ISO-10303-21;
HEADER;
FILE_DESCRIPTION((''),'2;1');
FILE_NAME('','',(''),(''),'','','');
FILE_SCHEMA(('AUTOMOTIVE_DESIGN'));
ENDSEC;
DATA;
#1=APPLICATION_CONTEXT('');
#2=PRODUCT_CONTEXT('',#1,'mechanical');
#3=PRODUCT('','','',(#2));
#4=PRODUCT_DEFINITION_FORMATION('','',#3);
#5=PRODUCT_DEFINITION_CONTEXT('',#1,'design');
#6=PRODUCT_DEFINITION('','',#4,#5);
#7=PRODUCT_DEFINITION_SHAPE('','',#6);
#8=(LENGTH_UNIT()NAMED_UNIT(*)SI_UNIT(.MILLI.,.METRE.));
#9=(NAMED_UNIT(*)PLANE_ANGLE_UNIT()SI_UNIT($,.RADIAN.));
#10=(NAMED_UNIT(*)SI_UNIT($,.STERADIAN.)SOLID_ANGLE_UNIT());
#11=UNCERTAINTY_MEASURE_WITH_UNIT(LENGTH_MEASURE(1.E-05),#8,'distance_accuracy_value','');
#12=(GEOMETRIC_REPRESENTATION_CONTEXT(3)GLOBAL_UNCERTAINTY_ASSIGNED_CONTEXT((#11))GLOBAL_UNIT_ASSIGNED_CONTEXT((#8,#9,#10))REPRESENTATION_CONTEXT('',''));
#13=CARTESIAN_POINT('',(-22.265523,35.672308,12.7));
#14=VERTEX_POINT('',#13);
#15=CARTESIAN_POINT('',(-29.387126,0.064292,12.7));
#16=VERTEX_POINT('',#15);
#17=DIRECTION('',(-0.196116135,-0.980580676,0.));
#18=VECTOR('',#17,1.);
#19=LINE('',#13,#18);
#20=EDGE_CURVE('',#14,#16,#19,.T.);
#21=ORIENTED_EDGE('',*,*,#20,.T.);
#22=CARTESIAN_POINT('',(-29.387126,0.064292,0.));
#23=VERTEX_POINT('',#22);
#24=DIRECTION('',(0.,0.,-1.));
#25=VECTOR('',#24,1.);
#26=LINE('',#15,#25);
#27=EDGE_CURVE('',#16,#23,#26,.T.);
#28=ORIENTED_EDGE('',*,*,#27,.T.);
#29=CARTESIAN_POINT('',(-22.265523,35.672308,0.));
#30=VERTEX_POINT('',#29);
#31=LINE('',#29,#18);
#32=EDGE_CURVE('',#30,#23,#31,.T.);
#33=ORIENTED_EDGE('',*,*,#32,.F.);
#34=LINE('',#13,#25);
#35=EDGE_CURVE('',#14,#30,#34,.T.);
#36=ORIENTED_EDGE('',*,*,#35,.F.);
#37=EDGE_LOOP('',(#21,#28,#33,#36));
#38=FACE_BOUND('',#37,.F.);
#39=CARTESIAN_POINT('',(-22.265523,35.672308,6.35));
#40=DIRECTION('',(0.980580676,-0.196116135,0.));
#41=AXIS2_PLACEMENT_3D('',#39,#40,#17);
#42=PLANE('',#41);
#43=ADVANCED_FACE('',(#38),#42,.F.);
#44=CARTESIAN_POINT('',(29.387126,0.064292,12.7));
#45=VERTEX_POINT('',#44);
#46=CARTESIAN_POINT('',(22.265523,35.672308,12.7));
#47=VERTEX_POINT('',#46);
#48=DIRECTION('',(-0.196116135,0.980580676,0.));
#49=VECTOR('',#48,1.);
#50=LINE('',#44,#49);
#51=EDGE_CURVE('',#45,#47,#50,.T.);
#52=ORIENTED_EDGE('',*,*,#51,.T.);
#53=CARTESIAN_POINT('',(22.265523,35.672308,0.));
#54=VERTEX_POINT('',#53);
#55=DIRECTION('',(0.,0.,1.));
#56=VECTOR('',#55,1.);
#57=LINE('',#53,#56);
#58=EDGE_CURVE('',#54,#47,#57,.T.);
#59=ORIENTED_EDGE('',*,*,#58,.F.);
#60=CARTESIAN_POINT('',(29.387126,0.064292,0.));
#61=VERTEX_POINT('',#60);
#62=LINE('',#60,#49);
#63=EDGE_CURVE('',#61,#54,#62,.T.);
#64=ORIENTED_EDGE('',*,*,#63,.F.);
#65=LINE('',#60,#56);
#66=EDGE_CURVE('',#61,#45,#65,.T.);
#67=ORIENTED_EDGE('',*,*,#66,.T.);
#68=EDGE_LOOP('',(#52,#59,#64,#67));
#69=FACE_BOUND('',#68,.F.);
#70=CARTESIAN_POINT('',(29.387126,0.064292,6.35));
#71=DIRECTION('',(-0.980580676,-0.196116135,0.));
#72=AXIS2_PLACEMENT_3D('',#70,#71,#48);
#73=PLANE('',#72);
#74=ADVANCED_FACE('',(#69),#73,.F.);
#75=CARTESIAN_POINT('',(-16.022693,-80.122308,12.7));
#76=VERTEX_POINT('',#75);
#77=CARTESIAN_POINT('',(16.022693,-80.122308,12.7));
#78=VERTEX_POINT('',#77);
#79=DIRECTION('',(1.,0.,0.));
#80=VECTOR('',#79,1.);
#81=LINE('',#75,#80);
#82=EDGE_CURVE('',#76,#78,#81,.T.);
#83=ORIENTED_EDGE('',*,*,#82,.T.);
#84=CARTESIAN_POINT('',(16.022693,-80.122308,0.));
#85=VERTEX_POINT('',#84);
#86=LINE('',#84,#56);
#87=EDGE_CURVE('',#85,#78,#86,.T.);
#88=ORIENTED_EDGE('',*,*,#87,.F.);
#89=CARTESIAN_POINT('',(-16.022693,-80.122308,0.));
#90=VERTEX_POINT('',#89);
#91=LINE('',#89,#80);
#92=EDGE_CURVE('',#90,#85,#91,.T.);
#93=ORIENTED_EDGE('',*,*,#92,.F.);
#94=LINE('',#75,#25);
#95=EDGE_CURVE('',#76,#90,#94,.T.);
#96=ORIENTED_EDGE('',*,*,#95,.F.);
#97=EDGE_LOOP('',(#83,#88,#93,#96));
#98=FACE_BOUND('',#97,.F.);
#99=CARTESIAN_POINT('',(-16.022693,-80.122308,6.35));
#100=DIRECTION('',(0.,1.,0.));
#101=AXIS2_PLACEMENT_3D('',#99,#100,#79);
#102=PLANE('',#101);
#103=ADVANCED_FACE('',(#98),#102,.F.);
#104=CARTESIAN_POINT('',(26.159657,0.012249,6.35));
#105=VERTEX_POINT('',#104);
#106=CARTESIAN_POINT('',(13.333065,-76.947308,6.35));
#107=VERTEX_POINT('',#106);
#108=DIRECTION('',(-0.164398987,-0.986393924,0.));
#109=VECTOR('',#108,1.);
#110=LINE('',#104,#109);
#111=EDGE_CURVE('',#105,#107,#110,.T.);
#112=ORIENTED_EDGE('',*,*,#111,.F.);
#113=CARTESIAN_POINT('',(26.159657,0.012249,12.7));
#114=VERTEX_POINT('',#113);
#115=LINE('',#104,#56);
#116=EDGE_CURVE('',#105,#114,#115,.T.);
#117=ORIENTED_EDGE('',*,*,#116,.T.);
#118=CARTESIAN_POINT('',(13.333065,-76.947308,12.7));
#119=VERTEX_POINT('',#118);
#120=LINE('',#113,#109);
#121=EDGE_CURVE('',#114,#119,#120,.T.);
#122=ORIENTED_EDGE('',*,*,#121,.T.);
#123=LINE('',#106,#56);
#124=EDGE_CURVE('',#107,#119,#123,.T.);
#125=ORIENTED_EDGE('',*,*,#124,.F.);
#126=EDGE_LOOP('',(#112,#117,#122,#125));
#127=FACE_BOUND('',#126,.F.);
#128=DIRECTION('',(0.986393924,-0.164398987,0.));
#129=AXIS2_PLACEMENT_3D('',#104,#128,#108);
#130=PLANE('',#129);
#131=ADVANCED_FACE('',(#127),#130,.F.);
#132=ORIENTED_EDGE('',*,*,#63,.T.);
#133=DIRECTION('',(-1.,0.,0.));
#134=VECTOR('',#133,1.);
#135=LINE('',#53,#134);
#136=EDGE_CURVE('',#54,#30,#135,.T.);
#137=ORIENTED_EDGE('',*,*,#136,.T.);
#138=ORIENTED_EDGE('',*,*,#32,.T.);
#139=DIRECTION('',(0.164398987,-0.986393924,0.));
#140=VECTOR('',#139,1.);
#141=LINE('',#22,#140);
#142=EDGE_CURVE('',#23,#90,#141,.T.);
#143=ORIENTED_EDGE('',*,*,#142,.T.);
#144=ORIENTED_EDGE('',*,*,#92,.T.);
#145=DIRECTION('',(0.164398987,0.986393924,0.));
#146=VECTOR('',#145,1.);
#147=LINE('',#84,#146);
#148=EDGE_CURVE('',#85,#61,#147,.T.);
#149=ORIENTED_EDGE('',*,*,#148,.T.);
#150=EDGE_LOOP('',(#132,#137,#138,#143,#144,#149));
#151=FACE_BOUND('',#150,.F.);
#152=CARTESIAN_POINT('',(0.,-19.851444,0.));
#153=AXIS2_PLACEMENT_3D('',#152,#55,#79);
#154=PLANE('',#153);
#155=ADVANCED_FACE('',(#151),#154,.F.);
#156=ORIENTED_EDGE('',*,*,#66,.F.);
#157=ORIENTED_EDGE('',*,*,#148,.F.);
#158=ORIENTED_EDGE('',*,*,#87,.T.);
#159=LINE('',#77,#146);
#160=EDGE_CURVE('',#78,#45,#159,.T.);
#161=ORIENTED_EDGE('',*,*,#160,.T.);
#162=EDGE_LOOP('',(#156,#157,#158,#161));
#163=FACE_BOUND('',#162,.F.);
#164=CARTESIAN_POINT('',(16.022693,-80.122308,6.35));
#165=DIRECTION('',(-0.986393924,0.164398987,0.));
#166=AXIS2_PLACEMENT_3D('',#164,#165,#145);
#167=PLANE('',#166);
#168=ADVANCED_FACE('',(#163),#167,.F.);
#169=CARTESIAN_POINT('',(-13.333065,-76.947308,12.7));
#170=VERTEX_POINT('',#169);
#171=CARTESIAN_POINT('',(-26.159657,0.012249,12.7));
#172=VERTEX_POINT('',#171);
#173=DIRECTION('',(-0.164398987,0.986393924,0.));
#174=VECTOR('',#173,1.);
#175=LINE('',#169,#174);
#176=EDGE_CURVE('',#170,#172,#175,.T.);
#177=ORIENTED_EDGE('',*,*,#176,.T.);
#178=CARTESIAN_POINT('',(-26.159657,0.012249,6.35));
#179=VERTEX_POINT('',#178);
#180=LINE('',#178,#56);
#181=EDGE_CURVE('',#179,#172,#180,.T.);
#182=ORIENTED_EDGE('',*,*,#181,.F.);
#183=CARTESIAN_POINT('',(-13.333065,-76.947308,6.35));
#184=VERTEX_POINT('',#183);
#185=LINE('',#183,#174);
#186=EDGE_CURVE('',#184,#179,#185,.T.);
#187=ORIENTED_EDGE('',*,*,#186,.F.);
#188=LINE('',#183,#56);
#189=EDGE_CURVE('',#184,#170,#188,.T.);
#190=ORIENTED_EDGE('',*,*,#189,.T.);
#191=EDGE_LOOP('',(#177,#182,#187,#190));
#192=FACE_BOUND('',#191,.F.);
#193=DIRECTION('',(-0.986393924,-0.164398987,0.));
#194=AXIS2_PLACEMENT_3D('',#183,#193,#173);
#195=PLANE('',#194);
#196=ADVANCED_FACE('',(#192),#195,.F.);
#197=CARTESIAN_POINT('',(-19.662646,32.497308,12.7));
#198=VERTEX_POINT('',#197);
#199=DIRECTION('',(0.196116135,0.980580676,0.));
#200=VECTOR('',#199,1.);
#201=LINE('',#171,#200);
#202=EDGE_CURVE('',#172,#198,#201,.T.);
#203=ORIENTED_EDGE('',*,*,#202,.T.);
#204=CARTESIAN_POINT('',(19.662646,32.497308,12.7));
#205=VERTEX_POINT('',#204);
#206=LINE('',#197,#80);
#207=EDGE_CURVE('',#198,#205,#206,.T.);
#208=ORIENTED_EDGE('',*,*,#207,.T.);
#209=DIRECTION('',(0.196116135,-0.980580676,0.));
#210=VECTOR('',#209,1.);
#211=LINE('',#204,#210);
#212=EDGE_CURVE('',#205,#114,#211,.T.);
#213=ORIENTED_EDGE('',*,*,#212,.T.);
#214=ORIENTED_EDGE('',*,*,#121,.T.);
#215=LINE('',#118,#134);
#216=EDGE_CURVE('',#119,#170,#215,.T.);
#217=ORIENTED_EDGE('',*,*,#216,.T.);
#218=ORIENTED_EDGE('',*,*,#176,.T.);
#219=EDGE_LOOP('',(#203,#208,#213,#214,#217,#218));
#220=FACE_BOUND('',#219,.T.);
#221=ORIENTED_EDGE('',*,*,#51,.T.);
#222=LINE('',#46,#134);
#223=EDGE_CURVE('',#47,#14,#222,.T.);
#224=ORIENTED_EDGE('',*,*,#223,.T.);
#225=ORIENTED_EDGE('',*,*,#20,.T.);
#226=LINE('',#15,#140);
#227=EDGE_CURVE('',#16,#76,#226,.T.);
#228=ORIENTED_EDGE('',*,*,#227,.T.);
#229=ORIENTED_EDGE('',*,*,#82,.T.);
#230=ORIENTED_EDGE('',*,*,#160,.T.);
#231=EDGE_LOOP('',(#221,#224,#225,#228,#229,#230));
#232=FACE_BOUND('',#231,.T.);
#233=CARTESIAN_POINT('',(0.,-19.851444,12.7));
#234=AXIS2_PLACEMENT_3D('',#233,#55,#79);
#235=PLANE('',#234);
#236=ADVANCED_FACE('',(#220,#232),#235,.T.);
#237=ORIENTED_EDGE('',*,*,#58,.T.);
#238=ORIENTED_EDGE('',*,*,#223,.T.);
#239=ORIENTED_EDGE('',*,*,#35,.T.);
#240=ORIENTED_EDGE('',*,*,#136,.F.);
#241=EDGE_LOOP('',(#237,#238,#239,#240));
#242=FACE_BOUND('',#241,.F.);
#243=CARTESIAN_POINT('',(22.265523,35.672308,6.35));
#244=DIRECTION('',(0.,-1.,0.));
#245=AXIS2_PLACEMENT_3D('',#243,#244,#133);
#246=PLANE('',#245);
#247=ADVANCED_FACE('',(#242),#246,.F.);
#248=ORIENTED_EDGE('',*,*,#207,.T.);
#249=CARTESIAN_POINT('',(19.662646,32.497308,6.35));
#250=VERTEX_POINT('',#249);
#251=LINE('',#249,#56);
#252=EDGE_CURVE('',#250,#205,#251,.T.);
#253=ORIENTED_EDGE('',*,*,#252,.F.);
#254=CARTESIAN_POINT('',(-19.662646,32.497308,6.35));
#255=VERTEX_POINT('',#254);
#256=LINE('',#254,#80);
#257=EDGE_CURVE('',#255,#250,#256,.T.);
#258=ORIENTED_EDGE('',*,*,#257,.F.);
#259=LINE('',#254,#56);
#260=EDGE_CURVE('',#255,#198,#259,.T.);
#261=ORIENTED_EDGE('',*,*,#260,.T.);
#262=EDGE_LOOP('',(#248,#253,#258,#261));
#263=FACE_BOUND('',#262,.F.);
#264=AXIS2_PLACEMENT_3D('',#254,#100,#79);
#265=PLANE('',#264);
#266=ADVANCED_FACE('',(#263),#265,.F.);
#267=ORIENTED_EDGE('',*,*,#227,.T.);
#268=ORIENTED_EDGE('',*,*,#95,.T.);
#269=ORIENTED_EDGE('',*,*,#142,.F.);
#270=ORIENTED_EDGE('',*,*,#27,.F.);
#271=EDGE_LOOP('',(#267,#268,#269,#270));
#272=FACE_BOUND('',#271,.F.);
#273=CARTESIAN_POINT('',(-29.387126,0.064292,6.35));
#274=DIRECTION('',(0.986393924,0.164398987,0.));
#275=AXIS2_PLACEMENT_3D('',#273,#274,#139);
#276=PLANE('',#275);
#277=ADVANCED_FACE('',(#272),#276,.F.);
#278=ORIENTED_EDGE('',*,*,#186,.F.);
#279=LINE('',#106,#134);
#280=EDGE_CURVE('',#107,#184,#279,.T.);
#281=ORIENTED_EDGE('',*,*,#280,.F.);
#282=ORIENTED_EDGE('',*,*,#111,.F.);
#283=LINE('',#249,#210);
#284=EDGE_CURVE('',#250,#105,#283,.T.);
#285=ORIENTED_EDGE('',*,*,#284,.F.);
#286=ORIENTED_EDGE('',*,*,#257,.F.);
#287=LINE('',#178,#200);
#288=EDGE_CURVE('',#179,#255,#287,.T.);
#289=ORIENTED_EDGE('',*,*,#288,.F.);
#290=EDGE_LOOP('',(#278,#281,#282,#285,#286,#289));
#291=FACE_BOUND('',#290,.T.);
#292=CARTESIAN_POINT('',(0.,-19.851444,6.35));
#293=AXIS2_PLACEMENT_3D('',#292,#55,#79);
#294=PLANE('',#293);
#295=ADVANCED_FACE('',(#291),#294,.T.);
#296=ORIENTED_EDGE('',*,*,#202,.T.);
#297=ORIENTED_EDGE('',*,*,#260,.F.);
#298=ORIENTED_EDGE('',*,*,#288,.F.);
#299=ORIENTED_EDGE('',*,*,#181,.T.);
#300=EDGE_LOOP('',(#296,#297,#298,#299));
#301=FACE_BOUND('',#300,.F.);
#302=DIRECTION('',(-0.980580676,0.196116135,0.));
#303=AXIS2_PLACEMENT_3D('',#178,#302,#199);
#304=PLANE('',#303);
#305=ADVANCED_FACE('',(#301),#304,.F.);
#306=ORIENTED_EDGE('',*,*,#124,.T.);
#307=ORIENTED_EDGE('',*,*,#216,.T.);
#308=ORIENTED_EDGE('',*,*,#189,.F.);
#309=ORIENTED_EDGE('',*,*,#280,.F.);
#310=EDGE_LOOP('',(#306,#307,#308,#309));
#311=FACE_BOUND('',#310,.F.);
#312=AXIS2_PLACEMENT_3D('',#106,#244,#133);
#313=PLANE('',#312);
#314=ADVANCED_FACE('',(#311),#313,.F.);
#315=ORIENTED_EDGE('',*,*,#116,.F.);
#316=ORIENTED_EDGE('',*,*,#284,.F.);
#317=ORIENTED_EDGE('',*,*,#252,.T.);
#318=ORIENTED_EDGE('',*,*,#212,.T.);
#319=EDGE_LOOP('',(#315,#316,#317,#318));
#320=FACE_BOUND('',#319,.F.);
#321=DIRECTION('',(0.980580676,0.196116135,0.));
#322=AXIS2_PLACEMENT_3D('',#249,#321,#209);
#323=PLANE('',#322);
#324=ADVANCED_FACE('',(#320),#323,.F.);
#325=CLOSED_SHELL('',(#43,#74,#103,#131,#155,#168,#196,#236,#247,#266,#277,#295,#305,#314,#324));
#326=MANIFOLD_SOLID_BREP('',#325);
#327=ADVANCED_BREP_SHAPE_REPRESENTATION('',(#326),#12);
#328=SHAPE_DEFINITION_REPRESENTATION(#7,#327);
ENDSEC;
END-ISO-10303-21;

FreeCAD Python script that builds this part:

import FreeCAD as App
import Part
import Sketcher
from FreeCAD import Vector
Q = App.Units.Quantity


def add_polygon(sketch, points):
    """Adds a closed chain of lines whose ends are joined by coincident constraints."""
    first, n = sketch.GeometryCount, len(points)
    for a, b in zip(points, points[1:] + points[:1]):
        sketch.addGeometry(Part.LineSegment(App.Vector(*a, 0), App.Vector(*b, 0)), False)
    for i in range(n):
        sketch.addConstraint(Sketcher.Constraint("Coincident", first + i, 2, first + (i + 1) % n, 1))

doc = App.newDocument("Part")
body = doc.addObject("PartDesign::Body", "Body")

sketch1 = body.newObject("Sketcher::SketchObject", "Sketch")
sketch1.AttachmentSupport = (doc.getObject("XY_Plane"), [""])
sketch1.MapMode = "FlatFace"
add_polygon(sketch1, [(-22, 36), (-29, 0), (-16, -80), (16, -80), (29, 0), (22, 36)])
sketch1.addConstraint([
    Sketcher.Constraint("Horizontal", 2),
    Sketcher.Constraint("Horizontal", 5),
    Sketcher.Constraint("Symmetric", 0, 2, 3, 2, -2),
    Sketcher.Constraint("Equal", 1, 3),
    Sketcher.Constraint("Equal", 0, 4),
    Sketcher.Constraint("DistanceY", 1, 2, 0, 2, 80.186599),
    Sketcher.Constraint("DistanceX", 2, 1, 2, 2, 32.045386),
    Sketcher.Constraint("DistanceX", 5, 2, 5, 1, 44.531046),
    Sketcher.Constraint("DistanceY", -1, 1, 0, 2, 0.064292),
    Sketcher.Constraint("DistanceX", 0, 2, 2, 2, 45.409819),
    Sketcher.Constraint("Distance", 0, 36.313194),
])
pad1 = body.newObject("PartDesign::Pad", "Pad")
pad1.Profile = sketch1
pad1.Length = Q("0.25 in")

sketch2 = body.newObject("Sketcher::SketchObject", "Sketch001")
sketch2.AttachmentSupport = (doc.getObject("XY_Plane"), [""])
sketch2.MapMode = "FlatFace"
sketch2.AttachmentOffset = App.Placement(Vector(0, 0, 0.25 * 25.4), App.Rotation())
add_polygon(sketch2, [(-16, -80), (16, -80), (29, 0), (22, 36), (-22, 36), (-29, 0)])
add_polygon(sketch2, [(20, 32), (26, 0), (13, -77), (-13, -77), (-26, 0), (-20, 32)])
sketch2.addConstraint([
    Sketcher.Constraint("Horizontal", 0),
    Sketcher.Constraint("Horizontal", 3),
    Sketcher.Constraint("Horizontal", 8),
    Sketcher.Constraint("Horizontal", 11),
    Sketcher.Constraint("Symmetric", 1, 2, 4, 2, -2),
    Sketcher.Constraint("Symmetric", 6, 2, 9, 2, -2),
    Sketcher.Constraint("Parallel", 2, 6),
    Sketcher.Constraint("Parallel", 1, 7),
    Sketcher.Constraint("Parallel", 5, 9),
    Sketcher.Constraint("Parallel", 4, 10),
    Sketcher.Constraint("Equal", 2, 4),
    Sketcher.Constraint("Equal", 1, 5),
    Sketcher.Constraint("DistanceY", 0, 2, 7, 2, Q("0.125 in")),
    Sketcher.Constraint("DistanceY", 10, 2, 3, 2, Q("0.125 in")),
    Sketcher.Constraint("DistanceX", 8, 2, 8, 1, 26.666129),
    Sketcher.Constraint("DistanceX", 11, 1, 11, 2, 39.325291),
    Sketcher.Constraint("DistanceY", 0, 2, 1, 2, 80.186599),
    Sketcher.Constraint("Distance", 6, 33.128389),
    Sketcher.Constraint("Distance", 7, 78.021118),
    Sketcher.Constraint("DistanceX", 0, 1, 0, 2, 32.045386),
    Sketcher.Constraint("DistanceY", -1, 1, 1, 2, 0.064292),
    Sketcher.Constraint("DistanceY", -1, 1, 6, 2, 0.012249),
])
pad2 = body.newObject("PartDesign::Pad", "Pad001")
pad2.Profile = sketch2
pad2.Length = Q("0.25 in")

doc.recompute()
